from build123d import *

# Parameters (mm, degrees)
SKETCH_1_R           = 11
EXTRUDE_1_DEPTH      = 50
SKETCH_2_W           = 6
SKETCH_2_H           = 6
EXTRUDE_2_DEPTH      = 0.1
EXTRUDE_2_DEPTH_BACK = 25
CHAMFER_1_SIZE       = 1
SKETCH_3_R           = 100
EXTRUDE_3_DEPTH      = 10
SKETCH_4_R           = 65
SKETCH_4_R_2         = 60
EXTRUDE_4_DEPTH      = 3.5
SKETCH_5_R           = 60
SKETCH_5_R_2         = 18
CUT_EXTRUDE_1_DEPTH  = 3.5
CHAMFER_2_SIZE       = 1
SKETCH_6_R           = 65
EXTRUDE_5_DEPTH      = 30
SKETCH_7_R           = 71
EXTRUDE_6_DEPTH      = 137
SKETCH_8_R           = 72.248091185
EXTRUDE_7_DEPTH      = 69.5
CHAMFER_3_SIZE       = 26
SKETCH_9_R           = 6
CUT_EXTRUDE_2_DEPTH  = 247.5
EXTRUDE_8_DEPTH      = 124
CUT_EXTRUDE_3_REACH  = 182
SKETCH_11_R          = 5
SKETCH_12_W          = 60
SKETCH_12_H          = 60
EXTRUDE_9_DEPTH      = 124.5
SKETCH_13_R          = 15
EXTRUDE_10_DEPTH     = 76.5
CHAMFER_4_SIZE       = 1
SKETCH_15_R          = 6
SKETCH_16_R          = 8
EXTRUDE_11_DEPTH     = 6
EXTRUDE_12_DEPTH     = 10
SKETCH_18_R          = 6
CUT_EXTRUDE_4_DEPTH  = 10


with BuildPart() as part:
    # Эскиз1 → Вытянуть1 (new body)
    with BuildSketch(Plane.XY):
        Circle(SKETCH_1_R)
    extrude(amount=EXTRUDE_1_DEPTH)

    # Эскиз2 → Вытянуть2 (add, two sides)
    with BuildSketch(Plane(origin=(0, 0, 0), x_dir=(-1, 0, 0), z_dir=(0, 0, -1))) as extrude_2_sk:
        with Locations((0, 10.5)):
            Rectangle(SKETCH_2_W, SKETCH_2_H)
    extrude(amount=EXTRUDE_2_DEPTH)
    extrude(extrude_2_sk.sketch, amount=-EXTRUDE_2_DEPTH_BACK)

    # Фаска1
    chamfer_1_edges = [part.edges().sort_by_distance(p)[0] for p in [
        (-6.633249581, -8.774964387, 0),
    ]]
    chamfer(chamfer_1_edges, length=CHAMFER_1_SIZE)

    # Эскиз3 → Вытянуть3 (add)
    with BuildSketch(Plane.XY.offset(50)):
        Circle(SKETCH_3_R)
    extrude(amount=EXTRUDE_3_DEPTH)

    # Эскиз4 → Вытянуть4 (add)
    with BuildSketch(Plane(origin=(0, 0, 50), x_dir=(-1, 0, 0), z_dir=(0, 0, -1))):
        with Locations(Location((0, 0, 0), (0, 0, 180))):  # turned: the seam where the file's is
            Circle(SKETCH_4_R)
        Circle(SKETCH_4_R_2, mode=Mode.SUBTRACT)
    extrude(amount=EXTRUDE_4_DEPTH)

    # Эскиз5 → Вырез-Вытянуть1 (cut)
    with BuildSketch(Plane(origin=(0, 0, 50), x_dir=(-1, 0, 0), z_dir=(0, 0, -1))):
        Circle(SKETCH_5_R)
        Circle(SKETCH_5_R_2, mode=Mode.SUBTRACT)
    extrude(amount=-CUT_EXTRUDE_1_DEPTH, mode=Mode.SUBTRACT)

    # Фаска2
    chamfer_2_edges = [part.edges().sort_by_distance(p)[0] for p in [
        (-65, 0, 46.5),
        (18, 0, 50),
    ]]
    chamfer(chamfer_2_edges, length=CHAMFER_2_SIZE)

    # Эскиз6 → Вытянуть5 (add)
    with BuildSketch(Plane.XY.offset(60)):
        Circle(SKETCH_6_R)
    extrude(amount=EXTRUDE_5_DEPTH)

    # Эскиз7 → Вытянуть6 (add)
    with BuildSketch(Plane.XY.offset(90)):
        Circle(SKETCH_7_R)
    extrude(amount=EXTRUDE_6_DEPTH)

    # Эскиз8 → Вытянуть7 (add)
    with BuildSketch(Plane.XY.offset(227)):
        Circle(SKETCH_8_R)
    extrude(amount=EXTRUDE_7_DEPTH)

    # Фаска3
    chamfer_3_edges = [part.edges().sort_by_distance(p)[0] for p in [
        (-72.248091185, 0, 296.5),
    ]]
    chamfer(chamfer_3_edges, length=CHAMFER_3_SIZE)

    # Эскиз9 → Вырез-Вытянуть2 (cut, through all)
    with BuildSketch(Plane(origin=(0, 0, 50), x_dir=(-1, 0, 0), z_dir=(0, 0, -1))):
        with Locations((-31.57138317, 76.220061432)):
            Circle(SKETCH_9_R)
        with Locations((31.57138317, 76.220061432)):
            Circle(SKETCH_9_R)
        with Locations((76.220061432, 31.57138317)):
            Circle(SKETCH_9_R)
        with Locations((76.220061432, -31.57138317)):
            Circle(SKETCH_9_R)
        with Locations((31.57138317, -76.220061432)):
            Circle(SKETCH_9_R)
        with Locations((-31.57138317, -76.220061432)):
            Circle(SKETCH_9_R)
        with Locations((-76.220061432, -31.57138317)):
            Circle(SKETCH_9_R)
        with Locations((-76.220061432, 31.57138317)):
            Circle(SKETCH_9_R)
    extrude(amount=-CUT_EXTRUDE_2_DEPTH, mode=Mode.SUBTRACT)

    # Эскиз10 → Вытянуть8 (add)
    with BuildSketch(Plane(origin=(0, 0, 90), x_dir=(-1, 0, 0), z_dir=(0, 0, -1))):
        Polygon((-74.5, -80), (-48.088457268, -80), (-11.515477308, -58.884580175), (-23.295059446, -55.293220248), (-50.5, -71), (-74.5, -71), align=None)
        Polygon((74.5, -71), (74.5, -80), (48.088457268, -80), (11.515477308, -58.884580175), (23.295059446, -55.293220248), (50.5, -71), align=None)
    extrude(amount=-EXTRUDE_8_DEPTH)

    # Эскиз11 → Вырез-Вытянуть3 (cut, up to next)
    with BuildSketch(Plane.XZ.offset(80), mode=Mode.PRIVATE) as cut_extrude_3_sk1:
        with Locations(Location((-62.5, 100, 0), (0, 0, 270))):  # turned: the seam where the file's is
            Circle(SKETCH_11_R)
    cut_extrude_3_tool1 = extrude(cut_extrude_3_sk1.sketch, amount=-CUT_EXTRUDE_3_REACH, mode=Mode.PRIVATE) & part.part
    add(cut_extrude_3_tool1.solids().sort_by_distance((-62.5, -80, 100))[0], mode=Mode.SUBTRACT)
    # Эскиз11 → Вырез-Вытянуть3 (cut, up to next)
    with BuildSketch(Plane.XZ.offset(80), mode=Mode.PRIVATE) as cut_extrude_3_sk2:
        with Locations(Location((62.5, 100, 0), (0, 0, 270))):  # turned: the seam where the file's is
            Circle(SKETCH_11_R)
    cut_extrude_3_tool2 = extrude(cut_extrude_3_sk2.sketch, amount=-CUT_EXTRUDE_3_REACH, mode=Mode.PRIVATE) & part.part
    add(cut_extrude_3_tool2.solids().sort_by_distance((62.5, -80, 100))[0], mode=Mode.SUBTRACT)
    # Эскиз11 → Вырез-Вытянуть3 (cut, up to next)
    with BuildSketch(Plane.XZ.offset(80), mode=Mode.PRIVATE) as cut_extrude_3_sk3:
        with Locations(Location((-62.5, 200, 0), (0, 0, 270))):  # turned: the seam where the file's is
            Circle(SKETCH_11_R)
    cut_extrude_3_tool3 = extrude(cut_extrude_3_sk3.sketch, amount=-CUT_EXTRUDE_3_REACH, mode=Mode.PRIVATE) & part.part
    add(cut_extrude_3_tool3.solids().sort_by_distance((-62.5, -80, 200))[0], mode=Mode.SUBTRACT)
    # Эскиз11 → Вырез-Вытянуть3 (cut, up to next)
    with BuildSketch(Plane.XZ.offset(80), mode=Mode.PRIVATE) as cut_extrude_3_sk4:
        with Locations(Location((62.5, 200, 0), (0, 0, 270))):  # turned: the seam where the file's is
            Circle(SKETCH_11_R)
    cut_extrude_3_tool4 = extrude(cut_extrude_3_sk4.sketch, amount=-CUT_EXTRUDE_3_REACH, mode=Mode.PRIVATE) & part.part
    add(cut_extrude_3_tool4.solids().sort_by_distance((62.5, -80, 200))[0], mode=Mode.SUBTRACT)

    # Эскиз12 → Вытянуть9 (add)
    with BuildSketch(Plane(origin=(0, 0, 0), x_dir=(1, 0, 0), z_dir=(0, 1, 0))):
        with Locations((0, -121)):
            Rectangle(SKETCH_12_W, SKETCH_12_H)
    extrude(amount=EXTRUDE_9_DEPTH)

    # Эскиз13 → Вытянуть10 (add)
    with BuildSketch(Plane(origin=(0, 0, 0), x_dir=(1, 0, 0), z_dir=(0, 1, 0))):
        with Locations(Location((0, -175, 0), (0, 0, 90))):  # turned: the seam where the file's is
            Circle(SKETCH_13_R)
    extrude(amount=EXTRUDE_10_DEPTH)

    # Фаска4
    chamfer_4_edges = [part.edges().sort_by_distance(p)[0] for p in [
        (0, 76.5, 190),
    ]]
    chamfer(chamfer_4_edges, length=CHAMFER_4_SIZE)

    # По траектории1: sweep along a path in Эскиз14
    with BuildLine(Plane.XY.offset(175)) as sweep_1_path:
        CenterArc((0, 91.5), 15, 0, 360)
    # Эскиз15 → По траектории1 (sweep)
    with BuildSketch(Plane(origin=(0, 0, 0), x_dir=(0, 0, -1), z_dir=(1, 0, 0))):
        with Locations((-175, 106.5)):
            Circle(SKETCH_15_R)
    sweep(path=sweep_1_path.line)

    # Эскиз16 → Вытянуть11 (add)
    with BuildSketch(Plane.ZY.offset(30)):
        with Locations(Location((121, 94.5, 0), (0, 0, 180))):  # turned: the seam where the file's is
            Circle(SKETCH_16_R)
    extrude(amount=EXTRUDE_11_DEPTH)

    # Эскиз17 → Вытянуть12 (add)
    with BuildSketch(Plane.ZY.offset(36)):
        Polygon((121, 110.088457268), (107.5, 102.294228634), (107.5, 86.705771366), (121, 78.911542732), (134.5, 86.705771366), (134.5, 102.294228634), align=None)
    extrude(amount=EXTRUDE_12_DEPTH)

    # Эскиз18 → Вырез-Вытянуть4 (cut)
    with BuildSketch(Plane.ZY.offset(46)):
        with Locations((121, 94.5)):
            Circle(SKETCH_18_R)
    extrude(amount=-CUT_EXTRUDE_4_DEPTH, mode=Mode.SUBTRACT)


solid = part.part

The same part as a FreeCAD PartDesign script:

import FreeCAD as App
import Part
import Sketcher
from FreeCAD import Vector
Q = App.Units.Quantity


def edges_at(feature, points):
    """Names of the edges that pass closest to the given points."""
    edges = feature.Shape.Edges
    near = lambda p: min(range(len(edges)), key=lambda i: edges[i].distToShape(Part.Vertex(*p))[0])
    return sorted({f"Edge{near(p) + 1}" for p in points})


def add_polygon(sketch, points):
    """Adds a closed chain of lines whose ends are joined by coincident constraints."""
    first, n = sketch.GeometryCount, len(points)
    for a, b in zip(points, points[1:] + points[:1]):
        sketch.addGeometry(Part.LineSegment(App.Vector(*a, 0), App.Vector(*b, 0)), False)
    for i in range(n):
        sketch.addConstraint(Sketcher.Constraint("Coincident", first + i, 2, first + (i + 1) % n, 1))

doc = App.newDocument("Part")
body = doc.addObject("PartDesign::Body", "Body")

# Sketch on XY plane
sketch1 = body.newObject("Sketcher::SketchObject", "Sketch")
sketch1.AttachmentSupport = (doc.getObject("XY_Plane"), [""])
sketch1.MapMode = "FlatFace"
sketch1.addGeometry(Part.Circle(Vector(0, 0, 0), Vector(0, 0, 1), 11), False)
sketch1.addConstraint([
    Sketcher.Constraint("Coincident", 0, 3, -1, 1),
    Sketcher.Constraint("Diameter", 0, Q("22 mm")),
])
pad1 = body.newObject("PartDesign::Pad", "Pad")
pad1.Profile = sketch1
pad1.Length = 50

# Sketch on XY plane
sketch2 = body.newObject("Sketcher::SketchObject", "Sketch001")
sketch2.AttachmentSupport = (doc.getObject("XY_Plane"), [""])
sketch2.MapMode = "FlatFace"
add_polygon(sketch2, [(3, 13.5), (3, 7.5), (-3, 7.5), (-3, 13.5)])  # lines 0-3
sketch2.addConstraint([
    Sketcher.Constraint("Vertical", 0),
    Sketcher.Constraint("Horizontal", 1),
    Sketcher.Constraint("Vertical", 2),
    Sketcher.Constraint("Horizontal", 3),
    Sketcher.Constraint("Equal", 3, 0),
    Sketcher.Constraint("DistanceX", 1, 2, 1, 1, Q("6 mm")),
    Sketcher.Constraint("DistanceX", -1, 1, 0, 2, Q("3 mm")),
    Sketcher.Constraint("DistanceY", -1, 1, 0, 2, Q("7.5 mm")),
])
pad2 = body.newObject("PartDesign::Pad", "Pad001")
pad2.Profile = sketch2
pad2.Type = "TwoLengths"
pad2.Length = 0.1
pad2.Length2 = 25
pad2.Reversed = True
doc.recompute()

chamfer = body.newObject("PartDesign::Chamfer", "Chamfer")
chamfer.Base = (pad2, edges_at(pad2, [(-6.633, -8.775, 0)]))
chamfer.Size = 1

# Sketch on XY plane
sketch3 = body.newObject("Sketcher::SketchObject", "Sketch002")
sketch3.AttachmentSupport = (doc.getObject("XY_Plane"), [""])
sketch3.MapMode = "FlatFace"
sketch3.AttachmentOffset = App.Placement(Vector(0, 0, 50), App.Rotation())
sketch3.addGeometry(Part.Circle(Vector(0, 0, 0), Vector(0, 0, 1), 100), False)
sketch3.addConstraint([
    Sketcher.Constraint("Coincident", 0, 3, -1, 1),
    Sketcher.Constraint("Diameter", 0, Q("200 mm")),
])
pad3 = body.newObject("PartDesign::Pad", "Pad002")
pad3.Profile = sketch3
pad3.Length = 10

# Sketch on XY plane
sketch4 = body.newObject("Sketcher::SketchObject", "Sketch003")
sketch4.AttachmentSupport = (doc.getObject("XY_Plane"), [""])
sketch4.MapMode = "FlatFace"
sketch4.AttachmentOffset = App.Placement(Vector(0, 0, 50), App.Rotation())
sketch4.addGeometry([
    Part.Circle(Vector(0, 0, 0), Vector(0, 0, 1), 65),
    Part.Circle(Vector(0, 0, 0), Vector(0, 0, 1), 60),
], False)
sketch4.addConstraint([
    Sketcher.Constraint("Coincident", 0, 3, -1, 1),
    Sketcher.Constraint("Coincident", 1, 3, -1, 1),
    Sketcher.Constraint("Diameter", 0, Q("130 mm")),
    Sketcher.Constraint("Diameter", 1, Q("120 mm")),
])
pad4 = body.newObject("PartDesign::Pad", "Pad003")
pad4.Profile = sketch4
pad4.Length = 3.5
pad4.Reversed = True

# Sketch on XY plane
sketch5 = body.newObject("Sketcher::SketchObject", "Sketch004")
sketch5.AttachmentSupport = (doc.getObject("XY_Plane"), [""])
sketch5.MapMode = "FlatFace"
sketch5.AttachmentOffset = App.Placement(Vector(0, 0, 50), App.Rotation())
sketch5.addGeometry([
    Part.Circle(Vector(0, 0, 0), Vector(0, 0, 1), 60),
    Part.Circle(Vector(0, 0, 0), Vector(0, 0, 1), 18),
], False)
sketch5.addConstraint([
    Sketcher.Constraint("Coincident", 0, 3, -1, 1),
    Sketcher.Constraint("Coincident", 1, 3, -1, 1),
    Sketcher.Constraint("Diameter", 0, Q("120 mm")),
    Sketcher.Constraint("Diameter", 1, Q("36 mm")),
])
pocket1 = body.newObject("PartDesign::Pocket", "Pocket")
pocket1.Profile = sketch5
pocket1.Length = 3.5
pocket1.Reversed = True
doc.recompute()

chamfer2 = body.newObject("PartDesign::Chamfer", "Chamfer001")
chamfer2.Base = (pocket1, edges_at(pocket1, [(-65, 0, 46.5), (18, 0, 50)]))
chamfer2.Size = 1

# Sketch on XY plane
sketch6 = body.newObject("Sketcher::SketchObject", "Sketch005")
sketch6.AttachmentSupport = (doc.getObject("XY_Plane"), [""])
sketch6.MapMode = "FlatFace"
sketch6.AttachmentOffset = App.Placement(Vector(0, 0, 60), App.Rotation())
sketch6.addGeometry(Part.Circle(Vector(0, 0, 0), Vector(0, 0, 1), 65), False)
sketch6.addConstraint([
    Sketcher.Constraint("Coincident", 0, 3, -1, 1),
    Sketcher.Constraint("Diameter", 0, Q("130 mm")),
])
pad5 = body.newObject("PartDesign::Pad", "Pad004")
pad5.Profile = sketch6
pad5.Length = 30

# Sketch on XY plane
sketch7 = body.newObject("Sketcher::SketchObject", "Sketch006")
sketch7.AttachmentSupport = (doc.getObject("XY_Plane"), [""])
sketch7.MapMode = "FlatFace"
sketch7.AttachmentOffset = App.Placement(Vector(0, 0, 90), App.Rotation())
sketch7.addGeometry(Part.Circle(Vector(0, 0, 0), Vector(0, 0, 1), 71), False)
sketch7.addConstraint([
    Sketcher.Constraint("Coincident", 0, 3, -1, 1),
    Sketcher.Constraint("Diameter", 0, Q("142 mm")),
])
pad6 = body.newObject("PartDesign::Pad", "Pad005")
pad6.Profile = sketch7
pad6.Length = 137

# Sketch on XY plane
sketch8 = body.newObject("Sketcher::SketchObject", "Sketch007")
sketch8.AttachmentSupport = (doc.getObject("XY_Plane"), [""])
sketch8.MapMode = "FlatFace"
sketch8.AttachmentOffset = App.Placement(Vector(0, 0, 227), App.Rotation())
sketch8.addGeometry(Part.Circle(Vector(0, 0, 0), Vector(0, 0, 1), 72.248091), False)
sketch8.addConstraint([
    Sketcher.Constraint("Coincident", 0, 3, -1, 1),
    Sketcher.Constraint("Diameter", 0, Q("144.496182 mm")),
])
pad7 = body.newObject("PartDesign::Pad", "Pad006")
pad7.Profile = sketch8
pad7.Length = 69.5
doc.recompute()

chamfer3 = body.newObject("PartDesign::Chamfer", "Chamfer002")
chamfer3.Base = (pad7, edges_at(pad7, [(-72.248, 0, 296.5)]))
chamfer3.Size = 26

# Sketch on XY plane
sketch9 = body.newObject("Sketcher::SketchObject", "Sketch008")
sketch9.AttachmentSupport = (doc.getObject("XY_Plane"), [""])
sketch9.MapMode = "FlatFace"
sketch9.AttachmentOffset = App.Placement(Vector(0, 0, 50), App.Rotation())
sketch9.addGeometry([
    Part.Circle(Vector(31.571383, 76.220061, 0), Vector(0, 0, 1), 6),  # 0
    Part.Circle(Vector(-31.571383, 76.220061, 0), Vector(0, 0, 1), 6),  # 1
    Part.Circle(Vector(-76.220061, 31.571383, 0), Vector(0, 0, 1), 6),  # 2
    Part.Circle(Vector(-76.220061, -31.571383, 0), Vector(0, 0, 1), 6),  # 3
    Part.Circle(Vector(-31.571383, -76.220061, 0), Vector(0, 0, 1), 6),  # 4
    Part.Circle(Vector(31.571383, -76.220061, 0), Vector(0, 0, 1), 6),  # 5
    Part.Circle(Vector(76.220061, -31.571383, 0), Vector(0, 0, 1), 6),  # 6
    Part.Circle(Vector(76.220061, 31.571383, 0), Vector(0, 0, 1), 6),  # 7
], False)
sketch9.addConstraint([
    Sketcher.Constraint("Equal", 0, 1),
    Sketcher.Constraint("Equal", 1, 2),
    Sketcher.Constraint("Equal", 2, 3),
    Sketcher.Constraint("Equal", 3, 4),
    Sketcher.Constraint("Equal", 4, 5),
    Sketcher.Constraint("Equal", 5, 6),
    Sketcher.Constraint("Equal", 6, 7),
    Sketcher.Constraint("Symmetric", 0, 3, 4, 3, -1, 1),
    Sketcher.Constraint("Symmetric", 1, 3, 5, 3, -1, 1),
    Sketcher.Constraint("Symmetric", 2, 3, 6, 3, -1, 1),
    Sketcher.Constraint("Symmetric", 3, 3, 7, 3, -1, 1),
    Sketcher.Constraint("Symmetric", 0, 3, 1, 3, -2),
    Sketcher.Constraint("Symmetric", 3, 3, 6, 3, -2),
    Sketcher.Constraint("Diameter", 0, Q("12 mm")),
    Sketcher.Constraint("DistanceY", -1, 1, 0, 3, Q("76.220061 mm")),
    Sketcher.Constraint("DistanceX", 2, 3, -1, 1, Q("76.220061 mm")),
    Sketcher.Constraint("DistanceX", 2, 3, 1, 3, Q("44.648678 mm")),
    Sketcher.Constraint("DistanceY", 2, 3, 1, 3, Q("44.648678 mm")),
])
pocket2 = body.newObject("PartDesign::Pocket", "Pocket001")
pocket2.Profile = sketch9
pocket2.Type = "ThroughAll"
pocket2.Reversed = True

# Sketch on XY plane
sketch10 = body.newObject("Sketcher::SketchObject", "Sketch009")
sketch10.AttachmentSupport = (doc.getObject("XY_Plane"), [""])
sketch10.MapMode = "FlatFace"
sketch10.AttachmentOffset = App.Placement(Vector(0, 0, 90), App.Rotation())
add_polygon(sketch10, [(74.5, -80), (48.088457, -80), (11.515477, -58.88458), (23.295059, -55.29322), (50.5, -71), (74.5, -71)])  # lines 0-5
add_polygon(sketch10, [(-74.5, -80), (-74.5, -71), (-50.5, -71), (-23.295059, -55.29322), (-11.515477, -58.88458), (-48.088457, -80)])  # lines 6-11
sketch10.addConstraint([
    Sketcher.Constraint("Horizontal", 0),
    Sketcher.Constraint("Horizontal", 4),
    Sketcher.Constraint("Vertical", 5),
    Sketcher.Constraint("Vertical", 6),
    Sketcher.Constraint("Horizontal", 7),
    Sketcher.Constraint("Horizontal", 11),
    Sketcher.Constraint("Symmetric", 4, 2, 6, 2, -2),
    Sketcher.Constraint("Symmetric", 2, 2, 8, 2, -2),
    Sketcher.Constraint("Symmetric", 1, 2, 9, 2, -2),
    Sketcher.Constraint("Symmetric", 0, 2, 10, 2, -2),
    Sketcher.Constraint("Parallel", 1, 3),
    Sketcher.Constraint("Parallel", 8, 10),
    Sketcher.Constraint("DistanceX", 4, 1, 4, 2, Q("24 mm")),
    Sketcher.Constraint("DistanceY", 5, 2, 5, 1, Q("9 mm")),
    Sketcher.Constraint("Angle", 1, Q("150 deg")),
    Sketcher.Constraint("DistanceY", 0, 2, -1, 1, Q("80 mm")),
    Sketcher.Constraint("DistanceX", 6, 2, 3, 2, Q("125 mm")),
    Sketcher.Constraint("Distance", 1, Q("42.23084 mm")),
    Sketcher.Constraint("Distance", 3, Q("31.41356 mm")),
    Sketcher.Constraint("DistanceX", 0, 2, 0, 1, Q("26.411543 mm")),
])
pad8 = body.newObject("PartDesign::Pad", "Pad007")
pad8.Profile = sketch10
pad8.Length = 124

# Sketch on XZ plane
sketch11 = body.newObject("Sketcher::SketchObject", "Sketch010")
sketch11.AttachmentSupport = (doc.getObject("XZ_Plane"), [""])
sketch11.MapMode = "FlatFace"
sketch11.AttachmentOffset = App.Placement(Vector(0, 0, 80), App.Rotation())
sketch11.addGeometry(Part.Circle(Vector(-62.5, 100, 0), Vector(0, 0, 1), 5), False)
sketch11.addConstraint([
    Sketcher.Constraint("Diameter", 0, Q("10 mm")),
    Sketcher.Constraint("DistanceY", -1, 1, 0, 3, Q("100 mm")),
    Sketcher.Constraint("DistanceX", 0, 3, -1, 1, Q("62.5 mm")),
])
pocket3 = body.newObject("PartDesign::Pocket", "Pocket002")
pocket3.Profile = sketch11
pocket3.Type = "UpToFirst"

# Sketch on XZ plane
sketch12 = body.newObject("Sketcher::SketchObject", "Sketch011")
sketch12.AttachmentSupport = (doc.getObject("XZ_Plane"), [""])
sketch12.MapMode = "FlatFace"
sketch12.AttachmentOffset = App.Placement(Vector(0, 0, 80), App.Rotation())
sketch12.addGeometry(Part.Circle(Vector(62.5, 100, 0), Vector(0, 0, 1), 5), False)
sketch12.addConstraint([
    Sketcher.Constraint("Diameter", 0, Q("10 mm")),
    Sketcher.Constraint("DistanceY", -1, 1, 0, 3, Q("100 mm")),
    Sketcher.Constraint("DistanceX", -1, 1, 0, 3, Q("62.5 mm")),
])
pocket4 = body.newObject("PartDesign::Pocket", "Pocket003")
pocket4.Profile = sketch12
pocket4.Type = "UpToFirst"

# Sketch on XZ plane
sketch13 = body.newObject("Sketcher::SketchObject", "Sketch012")
sketch13.AttachmentSupport = (doc.getObject("XZ_Plane"), [""])
sketch13.MapMode = "FlatFace"
sketch13.AttachmentOffset = App.Placement(Vector(0, 0, 80), App.Rotation())
sketch13.addGeometry(Part.Circle(Vector(-62.5, 200, 0), Vector(0, 0, 1), 5), False)
sketch13.addConstraint([
    Sketcher.Constraint("Diameter", 0, Q("10 mm")),
    Sketcher.Constraint("DistanceY", -1, 1, 0, 3, Q("200 mm")),
    Sketcher.Constraint("DistanceX", 0, 3, -1, 1, Q("62.5 mm")),
])
pocket5 = body.newObject("PartDesign::Pocket", "Pocket004")
pocket5.Profile = sketch13
pocket5.Type = "UpToFirst"

# Sketch on XZ plane
sketch14 = body.newObject("Sketcher::SketchObject", "Sketch013")
sketch14.AttachmentSupport = (doc.getObject("XZ_Plane"), [""])
sketch14.MapMode = "FlatFace"
sketch14.AttachmentOffset = App.Placement(Vector(0, 0, 80), App.Rotation())
sketch14.addGeometry(Part.Circle(Vector(62.5, 200, 0), Vector(0, 0, 1), 5), False)
sketch14.addConstraint([
    Sketcher.Constraint("Diameter", 0, Q("10 mm")),
    Sketcher.Constraint("DistanceY", -1, 1, 0, 3, Q("200 mm")),
    Sketcher.Constraint("DistanceX", -1, 1, 0, 3, Q("62.5 mm")),
])
pocket6 = body.newObject("PartDesign::Pocket", "Pocket005")
pocket6.Profile = sketch14
pocket6.Type = "UpToFirst"

# Sketch on XZ plane
sketch15 = body.newObject("Sketcher::SketchObject", "Sketch014")
sketch15.AttachmentSupport = (doc.getObject("XZ_Plane"), [""])
sketch15.MapMode = "FlatFace"
add_polygon(sketch15, [(-30, 91), (-30, 151), (30, 151), (30, 91)])  # lines 0-3
sketch15.addConstraint([
    Sketcher.Constraint("Vertical", 0),
    Sketcher.Constraint("Horizontal", 1),
    Sketcher.Constraint("Vertical", 2),
    Sketcher.Constraint("Horizontal", 3),
    Sketcher.Constraint("Equal", 3, 0),
    Sketcher.Constraint("DistanceX", 1, 1, 1, 2, Q("60 mm")),
    Sketcher.Constraint("DistanceX", 0, 2, -1, 1, Q("30 mm")),
    Sketcher.Constraint("DistanceY", -1, 1, 0, 2, Q("151 mm")),
])
pad9 = body.newObject("PartDesign::Pad", "Pad008")
pad9.Profile = sketch15
pad9.Length = 124.5
pad9.Reversed = True

# Sketch on XZ plane
sketch16 = body.newObject("Sketcher::SketchObject", "Sketch015")
sketch16.AttachmentSupport = (doc.getObject("XZ_Plane"), [""])
sketch16.MapMode = "FlatFace"
sketch16.addGeometry(Part.Circle(Vector(0, 175, 0), Vector(0, 0, 1), 15), False)
sketch16.addConstraint([
    Sketcher.Constraint("PointOnObject", 0, 3, -2),
    Sketcher.Constraint("Diameter", 0, Q("30 mm")),
    Sketcher.Constraint("DistanceY", -1, 1, 0, 3, Q("175 mm")),
])
pad10 = body.newObject("PartDesign::Pad", "Pad009")
pad10.Profile = sketch16
pad10.Length = 76.5
pad10.Reversed = True
doc.recompute()

chamfer4 = body.newObject("PartDesign::Chamfer", "Chamfer003")
chamfer4.Base = (pad10, edges_at(pad10, [(0, 76.5, 190)]))
chamfer4.Size = 1

# Sketch on YZ plane
sketch17 = body.newObject("Sketcher::SketchObject", "Sketch016")
sketch17.AttachmentSupport = (doc.getObject("YZ_Plane"), [""])
sketch17.MapMode = "FlatFace"
sketch17.addGeometry(Part.Circle(Vector(106.5, 175, 0), Vector(0, 0, 1), 6), False)
sketch17.addConstraint([
    Sketcher.Constraint("Diameter", 0, Q("12 mm")),
    Sketcher.Constraint("DistanceY", -1, 1, 0, 3, Q("175 mm")),
    Sketcher.Constraint("DistanceX", -1, 1, 0, 3, Q("106.5 mm")),
])

# Sketch on XY plane
sketch18 = body.newObject("Sketcher::SketchObject", "Sketch017")
sketch18.AttachmentSupport = (doc.getObject("XY_Plane"), [""])
sketch18.MapMode = "FlatFace"
sketch18.AttachmentOffset = App.Placement(Vector(0, 0, 175), App.Rotation())
sketch18.addGeometry(Part.Circle(Vector(0, 91.5, 0), Vector(0, 0, 1), 15), False)
sketch18.addConstraint([
    Sketcher.Constraint("PointOnObject", 0, 3, -2),
    Sketcher.Constraint("Diameter", 0, Q("30 mm")),
    Sketcher.Constraint("DistanceY", -1, 1, 0, 3, Q("91.5 mm")),
])
doc.recompute()

additivepipe = body.newObject("PartDesign::AdditivePipe", "AdditivePipe")
additivepipe.Profile = sketch17
additivepipe.Spine = (sketch18, ["Edge1"])

# Sketch on YZ plane
sketch19 = body.newObject("Sketcher::SketchObject", "Sketch018")
sketch19.AttachmentSupport = (doc.getObject("YZ_Plane"), [""])
sketch19.MapMode = "FlatFace"
sketch19.AttachmentOffset = App.Placement(Vector(0, 0, -30), App.Rotation())
sketch19.addGeometry(Part.Circle(Vector(94.5, 121, 0), Vector(0, 0, 1), 8), False)
sketch19.addConstraint([
    Sketcher.Constraint("Diameter", 0, Q("16 mm")),
    Sketcher.Constraint("DistanceY", -1, 1, 0, 3, Q("121 mm")),
    Sketcher.Constraint("DistanceX", -1, 1, 0, 3, Q("94.5 mm")),
])
pad11 = body.newObject("PartDesign::Pad", "Pad010")
pad11.Profile = sketch19
pad11.Length = 6
pad11.Reversed = True

# Sketch on YZ plane
sketch20 = body.newObject("Sketcher::SketchObject", "Sketch019")
sketch20.AttachmentSupport = (doc.getObject("YZ_Plane"), [""])
sketch20.MapMode = "FlatFace"
sketch20.AttachmentOffset = App.Placement(Vector(0, 0, -36), App.Rotation())
add_polygon(sketch20, [(110.088457, 121), (102.294229, 107.5), (86.705771, 107.5), (78.911543, 121), (86.705771, 134.5), (102.294229, 134.5)])  # lines 0-5
sketch20.addConstraint([
    Sketcher.Constraint("Horizontal", 1),
    Sketcher.Constraint("Horizontal", 4),
    Sketcher.Constraint("Parallel", 0, 3),
    Sketcher.Constraint("Parallel", 2, 5),
    Sketcher.Constraint("Horizontal", 2, 2, 5, 2),
    Sketcher.Constraint("Vertical", 1, 2, 3, 2),
    Sketcher.Constraint("Vertical", 0, 2, 4, 2),
    Sketcher.Constraint("Angle", 0, Q("-120 deg")),
    Sketcher.Constraint("DistanceY", -1, 1, 2, 2, Q("121 mm")),
    Sketcher.Constraint("DistanceY", 1, 2, 3, 2, Q("27 mm")),
    Sketcher.Constraint("DistanceX", 1, 2, 1, 1, Q("15.588457 mm")),
    Sketcher.Constraint("DistanceX", -1, 1, 0, 2, Q("102.294229 mm")),
])
pad12 = body.newObject("PartDesign::Pad", "Pad011")
pad12.Profile = sketch20
pad12.Length = 10
pad12.Reversed = True

# Sketch on YZ plane
sketch21 = body.newObject("Sketcher::SketchObject", "Sketch020")
sketch21.AttachmentSupport = (doc.getObject("YZ_Plane"), [""])
sketch21.MapMode = "FlatFace"
sketch21.AttachmentOffset = App.Placement(Vector(0, 0, -46), App.Rotation())
sketch21.addGeometry(Part.Circle(Vector(94.5, 121, 0), Vector(0, 0, 1), 6), False)
sketch21.addConstraint([
    Sketcher.Constraint("Diameter", 0, Q("12 mm")),
    Sketcher.Constraint("DistanceY", -1, 1, 0, 3, Q("121 mm")),
    Sketcher.Constraint("DistanceX", -1, 1, 0, 3, Q("94.5 mm")),
])
pocket7 = body.newObject("PartDesign::Pocket", "Pocket006")
pocket7.Profile = sketch21
pocket7.Length = 10
pocket7.Reversed = True

doc.recompute()
